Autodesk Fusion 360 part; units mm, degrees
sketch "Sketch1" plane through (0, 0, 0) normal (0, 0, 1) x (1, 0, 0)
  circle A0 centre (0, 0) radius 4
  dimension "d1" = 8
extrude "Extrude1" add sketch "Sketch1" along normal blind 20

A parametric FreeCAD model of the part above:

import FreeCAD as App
import Part
import Sketcher

V = App.Vector
Q = App.Units.Quantity

doc = App.newDocument("Part")
body = doc.addObject("PartDesign::Body", "Body")

sketch1 = body.newObject("Sketcher::SketchObject", "Sketch")
sketch1.AttachmentSupport = (doc.getObject("XY_Plane"), [""])
sketch1.MapMode = "FlatFace"
sketch1.addGeometry(Part.Circle(V(0, 0, 0), V(0, 0, 1), 4), False)
sketch1.addConstraint([
    Sketcher.Constraint("Coincident", 0, 3, -1, 1),
    Sketcher.Constraint("Diameter", 0, Q("8 mm")),
])
pad1 = body.newObject("PartDesign::Pad", "Pad")
pad1.Profile = sketch1
pad1.Length = 20

doc.recompute()
